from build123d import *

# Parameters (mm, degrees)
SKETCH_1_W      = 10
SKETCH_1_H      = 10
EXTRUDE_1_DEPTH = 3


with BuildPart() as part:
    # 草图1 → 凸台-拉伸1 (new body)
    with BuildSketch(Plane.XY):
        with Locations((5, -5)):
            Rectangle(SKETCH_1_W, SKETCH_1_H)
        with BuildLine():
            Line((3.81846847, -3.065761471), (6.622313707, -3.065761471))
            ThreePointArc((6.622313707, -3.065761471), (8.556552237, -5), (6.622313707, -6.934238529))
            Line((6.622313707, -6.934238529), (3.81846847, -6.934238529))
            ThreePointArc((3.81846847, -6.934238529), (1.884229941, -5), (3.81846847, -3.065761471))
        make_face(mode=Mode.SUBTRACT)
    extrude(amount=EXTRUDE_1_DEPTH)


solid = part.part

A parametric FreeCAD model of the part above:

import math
import FreeCAD as App
import Part
import Sketcher
from FreeCAD import Vector


def add_polygon(sketch, points):
    """Adds a closed chain of lines whose ends are joined by coincident constraints."""
    first, n = sketch.GeometryCount, len(points)
    for a, b in zip(points, points[1:] + points[:1]):
        sketch.addGeometry(Part.LineSegment(App.Vector(*a, 0), App.Vector(*b, 0)), False)
    for i in range(n):
        sketch.addConstraint(Sketcher.Constraint("Coincident", first + i, 2, first + (i + 1) % n, 1))

doc = App.newDocument("Part")
body = doc.addObject("PartDesign::Body", "Body")

# Sketch on XY plane
sketch1 = doc.addObject("Sketcher::SketchObject", "Sketch")
body.addObject(sketch1)
sketch1.AttachmentSupport = (doc.XY_Plane, [""])
sketch1.MapMode = "FlatFace"
add_polygon(sketch1, [(0, 0), (0, -10), (10, -10), (10, 0)])  # lines 0-3
sketch1.addGeometry(Part.ArcOfCircle(Part.Circle(Vector(3.8, -5, 0), Vector(0, 0, 1), 1.9), math.radians(90), math.radians(270)), False)  # 4
sketch1.addGeometry(Part.LineSegment(Vector(3.8, -3.1, 0), Vector(6.6, -3.1, 0)), False)  # 5
sketch1.addGeometry(Part.ArcOfCircle(Part.Circle(Vector(6.6, -5, 0), Vector(0, 0, 1), 1.9), math.radians(-90), math.radians(90)), False)  # 6
sketch1.addGeometry(Part.LineSegment(Vector(6.6, -6.9, 0), Vector(3.8, -6.9, 0)), False)  # 7
sketch1.addConstraint(Sketcher.Constraint("Tangent", 4, 1, 5, 1))
sketch1.addConstraint(Sketcher.Constraint("Tangent", 5, 2, 6, 2))
sketch1.addConstraint(Sketcher.Constraint("Tangent", 6, 1, 7, 1))
sketch1.addConstraint(Sketcher.Constraint("Tangent", 7, 2, 4, 2))
sketch1.addConstraint(Sketcher.Constraint("Vertical", 0))
sketch1.addConstraint(Sketcher.Constraint("Horizontal", 1))
sketch1.addConstraint(Sketcher.Constraint("Vertical", 2))
sketch1.addConstraint(Sketcher.Constraint("Horizontal", 3))
sketch1.addConstraint(Sketcher.Constraint("Horizontal", 5))
sketch1.addConstraint(Sketcher.Constraint("Horizontal", 7))
sketch1.addConstraint(Sketcher.Constraint("Coincident", 3, 2, -1, 1))
sketch1.addConstraint(Sketcher.Constraint("Equal", 3, 0))
sketch1.addConstraint(Sketcher.Constraint("DistanceX", 1, 1, 1, 2, 10.0))
sketch1.addConstraint(Sketcher.Constraint("DistanceY", 4, 3, -1, 1, 5.0))
sketch1.addConstraint(Sketcher.Constraint("Radius", 4, 1.934239))
sketch1.addConstraint(Sketcher.Constraint("DistanceX", 5, 1, 5, 2, 2.803845))
sketch1.addConstraint(Sketcher.Constraint("DistanceX", -1, 1, 4, 3, 3.818468))
pad1 = doc.addObject("PartDesign::Pad", "Pad")
body.addObject(pad1)
pad1.Profile = sketch1
pad1.Length = 3

doc.recompute()
